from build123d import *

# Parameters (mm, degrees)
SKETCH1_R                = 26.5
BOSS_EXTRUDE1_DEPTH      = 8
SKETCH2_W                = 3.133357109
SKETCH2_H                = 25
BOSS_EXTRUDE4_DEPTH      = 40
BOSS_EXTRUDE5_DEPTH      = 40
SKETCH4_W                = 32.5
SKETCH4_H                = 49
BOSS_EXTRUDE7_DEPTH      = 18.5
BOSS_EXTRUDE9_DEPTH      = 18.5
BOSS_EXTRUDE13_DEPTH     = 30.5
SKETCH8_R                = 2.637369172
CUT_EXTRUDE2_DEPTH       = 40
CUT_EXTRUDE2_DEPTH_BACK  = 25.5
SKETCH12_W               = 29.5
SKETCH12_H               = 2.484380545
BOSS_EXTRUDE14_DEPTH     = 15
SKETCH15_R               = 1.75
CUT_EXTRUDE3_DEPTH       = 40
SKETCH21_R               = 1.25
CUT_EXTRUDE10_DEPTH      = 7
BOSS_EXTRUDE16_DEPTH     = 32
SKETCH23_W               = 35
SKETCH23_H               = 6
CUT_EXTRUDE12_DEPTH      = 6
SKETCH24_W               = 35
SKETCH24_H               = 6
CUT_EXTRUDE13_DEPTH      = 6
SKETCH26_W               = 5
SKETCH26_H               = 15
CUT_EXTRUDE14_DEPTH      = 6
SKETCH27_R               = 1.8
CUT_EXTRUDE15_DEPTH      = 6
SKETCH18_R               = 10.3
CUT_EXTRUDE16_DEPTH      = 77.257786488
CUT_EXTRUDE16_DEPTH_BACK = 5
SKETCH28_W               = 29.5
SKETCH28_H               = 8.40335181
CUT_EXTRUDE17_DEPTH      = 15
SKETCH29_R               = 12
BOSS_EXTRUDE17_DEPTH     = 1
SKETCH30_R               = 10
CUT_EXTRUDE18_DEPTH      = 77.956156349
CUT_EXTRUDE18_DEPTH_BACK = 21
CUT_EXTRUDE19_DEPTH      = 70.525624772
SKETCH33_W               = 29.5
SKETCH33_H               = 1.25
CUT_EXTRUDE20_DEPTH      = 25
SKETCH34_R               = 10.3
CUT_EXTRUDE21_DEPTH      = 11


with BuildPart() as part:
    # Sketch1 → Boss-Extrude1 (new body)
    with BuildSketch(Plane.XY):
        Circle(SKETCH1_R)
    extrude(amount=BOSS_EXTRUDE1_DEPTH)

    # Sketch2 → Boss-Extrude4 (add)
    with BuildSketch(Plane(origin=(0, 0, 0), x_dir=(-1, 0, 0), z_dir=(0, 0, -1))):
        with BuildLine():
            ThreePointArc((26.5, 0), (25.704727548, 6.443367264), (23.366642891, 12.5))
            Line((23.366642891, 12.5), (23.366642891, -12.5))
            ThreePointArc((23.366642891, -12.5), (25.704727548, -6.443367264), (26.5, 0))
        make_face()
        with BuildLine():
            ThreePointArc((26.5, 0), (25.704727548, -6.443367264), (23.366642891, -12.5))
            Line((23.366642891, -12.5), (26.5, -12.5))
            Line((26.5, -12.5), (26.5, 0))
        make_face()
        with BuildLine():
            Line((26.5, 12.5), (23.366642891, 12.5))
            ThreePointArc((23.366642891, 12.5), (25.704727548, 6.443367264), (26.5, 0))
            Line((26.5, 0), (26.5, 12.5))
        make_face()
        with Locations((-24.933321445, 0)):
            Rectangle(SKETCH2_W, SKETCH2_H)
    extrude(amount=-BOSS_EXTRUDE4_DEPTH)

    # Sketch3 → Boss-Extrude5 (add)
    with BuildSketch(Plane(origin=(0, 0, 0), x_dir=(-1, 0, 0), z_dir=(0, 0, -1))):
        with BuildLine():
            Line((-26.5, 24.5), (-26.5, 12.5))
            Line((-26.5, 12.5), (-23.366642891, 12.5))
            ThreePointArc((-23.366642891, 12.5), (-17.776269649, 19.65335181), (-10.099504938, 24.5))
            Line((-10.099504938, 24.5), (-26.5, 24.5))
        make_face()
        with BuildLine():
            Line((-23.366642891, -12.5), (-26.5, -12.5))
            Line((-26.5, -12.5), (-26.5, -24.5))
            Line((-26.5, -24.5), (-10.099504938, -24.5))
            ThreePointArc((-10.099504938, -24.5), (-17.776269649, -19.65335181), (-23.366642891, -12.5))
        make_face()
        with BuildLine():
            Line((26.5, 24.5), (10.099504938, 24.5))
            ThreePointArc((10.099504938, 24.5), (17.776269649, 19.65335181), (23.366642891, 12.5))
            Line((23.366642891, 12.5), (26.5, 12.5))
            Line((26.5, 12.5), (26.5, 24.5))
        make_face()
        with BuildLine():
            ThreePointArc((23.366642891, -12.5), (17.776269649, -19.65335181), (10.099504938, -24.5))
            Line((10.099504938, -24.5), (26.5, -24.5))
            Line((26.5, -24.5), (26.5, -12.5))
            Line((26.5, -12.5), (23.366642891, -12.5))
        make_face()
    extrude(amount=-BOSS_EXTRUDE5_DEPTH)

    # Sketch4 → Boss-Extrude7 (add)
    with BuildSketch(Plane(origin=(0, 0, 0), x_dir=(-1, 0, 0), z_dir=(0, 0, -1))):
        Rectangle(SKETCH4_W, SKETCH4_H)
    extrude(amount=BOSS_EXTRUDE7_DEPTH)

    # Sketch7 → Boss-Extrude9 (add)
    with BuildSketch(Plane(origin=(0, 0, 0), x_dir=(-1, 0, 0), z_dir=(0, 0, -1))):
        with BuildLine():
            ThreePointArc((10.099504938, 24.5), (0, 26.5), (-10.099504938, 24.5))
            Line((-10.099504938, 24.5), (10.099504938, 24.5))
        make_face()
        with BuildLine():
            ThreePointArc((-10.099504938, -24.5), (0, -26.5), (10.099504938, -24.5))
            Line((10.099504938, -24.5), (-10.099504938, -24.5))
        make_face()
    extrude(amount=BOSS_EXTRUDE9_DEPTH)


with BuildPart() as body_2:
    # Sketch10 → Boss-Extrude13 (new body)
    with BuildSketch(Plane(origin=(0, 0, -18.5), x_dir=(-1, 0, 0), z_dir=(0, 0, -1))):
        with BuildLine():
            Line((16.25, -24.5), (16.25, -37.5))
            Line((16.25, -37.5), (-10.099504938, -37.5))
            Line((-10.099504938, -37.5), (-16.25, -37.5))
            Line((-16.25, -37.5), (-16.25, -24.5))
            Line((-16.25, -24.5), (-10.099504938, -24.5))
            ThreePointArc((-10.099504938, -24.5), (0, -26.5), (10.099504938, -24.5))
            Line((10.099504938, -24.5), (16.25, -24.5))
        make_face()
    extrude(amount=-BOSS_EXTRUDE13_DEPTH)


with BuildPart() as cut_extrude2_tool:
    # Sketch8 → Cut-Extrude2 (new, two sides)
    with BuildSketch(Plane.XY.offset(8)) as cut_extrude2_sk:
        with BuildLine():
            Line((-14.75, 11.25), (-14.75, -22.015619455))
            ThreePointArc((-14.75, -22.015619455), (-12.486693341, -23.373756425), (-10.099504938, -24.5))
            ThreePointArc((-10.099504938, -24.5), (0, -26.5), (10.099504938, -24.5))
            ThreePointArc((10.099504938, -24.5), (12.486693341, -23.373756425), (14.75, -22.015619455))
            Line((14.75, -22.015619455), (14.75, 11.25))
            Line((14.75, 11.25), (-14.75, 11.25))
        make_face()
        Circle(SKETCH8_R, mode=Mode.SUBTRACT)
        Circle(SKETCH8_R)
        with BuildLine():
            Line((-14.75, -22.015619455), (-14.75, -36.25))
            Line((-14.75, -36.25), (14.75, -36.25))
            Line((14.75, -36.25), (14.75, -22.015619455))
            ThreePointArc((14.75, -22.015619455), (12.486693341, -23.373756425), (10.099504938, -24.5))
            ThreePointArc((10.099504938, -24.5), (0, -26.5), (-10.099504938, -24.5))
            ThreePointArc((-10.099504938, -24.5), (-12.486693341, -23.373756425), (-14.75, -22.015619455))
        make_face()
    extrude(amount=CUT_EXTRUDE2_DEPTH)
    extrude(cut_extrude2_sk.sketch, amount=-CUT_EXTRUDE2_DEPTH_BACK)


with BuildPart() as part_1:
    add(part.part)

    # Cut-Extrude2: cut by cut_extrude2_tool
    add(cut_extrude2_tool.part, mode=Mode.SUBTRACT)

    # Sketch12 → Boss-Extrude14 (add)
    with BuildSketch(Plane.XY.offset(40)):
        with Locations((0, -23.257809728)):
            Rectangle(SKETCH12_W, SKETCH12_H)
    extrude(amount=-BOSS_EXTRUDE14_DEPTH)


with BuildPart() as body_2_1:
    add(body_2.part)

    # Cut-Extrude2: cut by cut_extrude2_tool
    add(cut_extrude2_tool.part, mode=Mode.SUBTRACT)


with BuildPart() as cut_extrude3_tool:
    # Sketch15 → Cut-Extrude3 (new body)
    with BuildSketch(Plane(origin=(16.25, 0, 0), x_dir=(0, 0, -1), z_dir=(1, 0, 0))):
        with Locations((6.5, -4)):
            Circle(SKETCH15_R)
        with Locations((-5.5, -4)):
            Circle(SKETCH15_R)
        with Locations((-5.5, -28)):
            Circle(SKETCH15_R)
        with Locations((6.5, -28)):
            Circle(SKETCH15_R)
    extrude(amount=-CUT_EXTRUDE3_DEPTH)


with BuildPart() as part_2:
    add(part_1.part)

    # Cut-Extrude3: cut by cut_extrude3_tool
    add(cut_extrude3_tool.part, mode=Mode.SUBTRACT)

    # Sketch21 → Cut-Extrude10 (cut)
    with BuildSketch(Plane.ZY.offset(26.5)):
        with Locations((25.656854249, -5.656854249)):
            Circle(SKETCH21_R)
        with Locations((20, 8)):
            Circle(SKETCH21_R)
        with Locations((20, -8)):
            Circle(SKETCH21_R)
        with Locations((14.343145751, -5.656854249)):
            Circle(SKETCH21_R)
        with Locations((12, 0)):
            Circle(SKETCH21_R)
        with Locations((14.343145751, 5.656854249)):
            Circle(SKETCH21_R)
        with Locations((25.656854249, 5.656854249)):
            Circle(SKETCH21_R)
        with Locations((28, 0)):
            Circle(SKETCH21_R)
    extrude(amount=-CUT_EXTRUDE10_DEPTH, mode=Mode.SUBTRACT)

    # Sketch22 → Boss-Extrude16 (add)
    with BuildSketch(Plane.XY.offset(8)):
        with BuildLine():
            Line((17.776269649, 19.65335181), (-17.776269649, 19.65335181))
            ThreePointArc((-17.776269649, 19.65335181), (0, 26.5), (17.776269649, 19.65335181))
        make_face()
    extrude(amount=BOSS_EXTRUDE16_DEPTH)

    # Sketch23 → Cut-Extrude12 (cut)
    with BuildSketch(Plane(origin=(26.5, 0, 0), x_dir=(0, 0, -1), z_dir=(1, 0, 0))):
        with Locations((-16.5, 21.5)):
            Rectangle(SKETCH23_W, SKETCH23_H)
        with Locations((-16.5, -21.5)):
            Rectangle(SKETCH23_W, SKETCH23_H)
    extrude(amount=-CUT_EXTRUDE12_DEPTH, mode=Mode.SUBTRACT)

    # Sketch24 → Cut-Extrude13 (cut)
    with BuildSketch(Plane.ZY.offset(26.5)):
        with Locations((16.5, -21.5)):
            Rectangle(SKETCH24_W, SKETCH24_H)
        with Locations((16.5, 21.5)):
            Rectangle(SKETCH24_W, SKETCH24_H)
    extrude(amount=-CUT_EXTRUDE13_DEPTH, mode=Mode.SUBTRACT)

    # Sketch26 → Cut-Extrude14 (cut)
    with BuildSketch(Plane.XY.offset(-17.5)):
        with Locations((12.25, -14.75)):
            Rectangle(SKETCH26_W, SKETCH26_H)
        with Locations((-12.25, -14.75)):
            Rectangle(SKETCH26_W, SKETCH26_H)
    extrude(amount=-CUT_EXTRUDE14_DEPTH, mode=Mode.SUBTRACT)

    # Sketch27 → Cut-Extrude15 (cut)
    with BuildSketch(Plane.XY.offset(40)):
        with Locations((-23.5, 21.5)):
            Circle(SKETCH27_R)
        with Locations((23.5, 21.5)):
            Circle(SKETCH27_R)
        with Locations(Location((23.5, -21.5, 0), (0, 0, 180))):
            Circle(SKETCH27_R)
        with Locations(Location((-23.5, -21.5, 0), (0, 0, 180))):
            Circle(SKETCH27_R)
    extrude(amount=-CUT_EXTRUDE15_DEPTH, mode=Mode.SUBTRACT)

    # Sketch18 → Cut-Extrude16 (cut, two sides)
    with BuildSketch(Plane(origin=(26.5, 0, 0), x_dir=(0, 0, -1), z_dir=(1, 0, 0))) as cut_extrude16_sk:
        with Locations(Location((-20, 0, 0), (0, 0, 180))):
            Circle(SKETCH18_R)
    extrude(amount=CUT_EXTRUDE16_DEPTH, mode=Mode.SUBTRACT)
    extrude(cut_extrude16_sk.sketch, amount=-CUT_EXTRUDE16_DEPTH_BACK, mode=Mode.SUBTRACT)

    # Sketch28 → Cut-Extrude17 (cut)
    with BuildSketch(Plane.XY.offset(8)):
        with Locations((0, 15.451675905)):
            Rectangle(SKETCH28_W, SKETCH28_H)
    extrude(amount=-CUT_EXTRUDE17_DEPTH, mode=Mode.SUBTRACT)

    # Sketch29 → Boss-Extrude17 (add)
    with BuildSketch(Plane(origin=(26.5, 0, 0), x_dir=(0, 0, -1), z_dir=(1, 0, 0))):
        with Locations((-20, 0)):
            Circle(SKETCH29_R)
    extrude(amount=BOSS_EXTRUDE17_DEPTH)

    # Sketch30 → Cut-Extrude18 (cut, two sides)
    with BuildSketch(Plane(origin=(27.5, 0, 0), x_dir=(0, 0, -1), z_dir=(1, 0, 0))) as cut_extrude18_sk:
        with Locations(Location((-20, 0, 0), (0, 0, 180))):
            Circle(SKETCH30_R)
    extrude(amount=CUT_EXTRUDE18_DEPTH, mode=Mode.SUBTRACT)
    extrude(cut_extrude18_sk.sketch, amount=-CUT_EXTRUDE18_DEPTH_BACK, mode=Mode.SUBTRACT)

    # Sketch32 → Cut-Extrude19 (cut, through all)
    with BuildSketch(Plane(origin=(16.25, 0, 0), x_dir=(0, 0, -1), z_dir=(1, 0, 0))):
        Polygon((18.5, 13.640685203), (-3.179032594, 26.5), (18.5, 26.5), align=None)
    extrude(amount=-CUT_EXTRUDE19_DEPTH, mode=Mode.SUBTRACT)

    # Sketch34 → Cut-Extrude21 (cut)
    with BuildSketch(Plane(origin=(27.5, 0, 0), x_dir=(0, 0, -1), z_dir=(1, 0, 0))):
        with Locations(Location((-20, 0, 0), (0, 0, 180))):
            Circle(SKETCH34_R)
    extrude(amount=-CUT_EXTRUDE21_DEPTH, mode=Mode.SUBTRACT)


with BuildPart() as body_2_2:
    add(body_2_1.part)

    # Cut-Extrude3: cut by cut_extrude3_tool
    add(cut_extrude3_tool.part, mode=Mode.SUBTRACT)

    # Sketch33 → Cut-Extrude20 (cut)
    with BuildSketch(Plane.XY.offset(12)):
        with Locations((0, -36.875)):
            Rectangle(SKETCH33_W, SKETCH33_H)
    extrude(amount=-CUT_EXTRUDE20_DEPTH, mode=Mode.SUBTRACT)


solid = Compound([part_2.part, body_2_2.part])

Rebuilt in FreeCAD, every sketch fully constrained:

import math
import FreeCAD as App
import Part
import Sketcher
from FreeCAD import Vector
Q = App.Units.Quantity


def add_polygon(sketch, points):
    """Adds a closed chain of lines whose ends are joined by coincident constraints."""
    first, n = sketch.GeometryCount, len(points)
    for a, b in zip(points, points[1:] + points[:1]):
        sketch.addGeometry(Part.LineSegment(App.Vector(*a, 0), App.Vector(*b, 0)), False)
    for i in range(n):
        sketch.addConstraint(Sketcher.Constraint("Coincident", first + i, 2, first + (i + 1) % n, 1))

doc = App.newDocument("Part")
body = doc.addObject("PartDesign::Body", "Body")

sketch1 = body.newObject("Sketcher::SketchObject", "Sketch")
sketch1.AttachmentSupport = (doc.getObject("XY_Plane"), [""])
sketch1.MapMode = "FlatFace"
sketch1.addGeometry(Part.Circle(Vector(0, 0, 0), Vector(0, 0, 1), 26), False)
sketch1.addConstraint(Sketcher.Constraint("Coincident", 0, 3, -1, 1))
sketch1.addConstraint(Sketcher.Constraint("Diameter", 0, Q("53 mm")))
pad1 = body.newObject("PartDesign::Pad", "Pad")
pad1.Profile = sketch1
pad1.Length = 8

sketch2 = body.newObject("Sketcher::SketchObject", "Sketch001")
sketch2.AttachmentSupport = (doc.getObject("XY_Plane"), [""])
sketch2.MapMode = "FlatFace"
add_polygon(sketch2, [(-23.4, 12.5), (-23.4, -12.5), (-26.5, -12.5), (-26.5, 12.5)])
add_polygon(sketch2, [(26.5, 12.5), (26.5, -12.5), (23.4, -12.5), (23.4, 12.5)])
sketch2.addConstraint(Sketcher.Constraint("Vertical", 0))
sketch2.addConstraint(Sketcher.Constraint("Horizontal", 1))
sketch2.addConstraint(Sketcher.Constraint("Vertical", 2))
sketch2.addConstraint(Sketcher.Constraint("Horizontal", 3))
sketch2.addConstraint(Sketcher.Constraint("Vertical", 4))
sketch2.addConstraint(Sketcher.Constraint("Horizontal", 5))
sketch2.addConstraint(Sketcher.Constraint("Vertical", 6))
sketch2.addConstraint(Sketcher.Constraint("Horizontal", 7))
sketch2.addConstraint(Sketcher.Constraint("Symmetric", 2, 2, 4, 2, -1, 1))
sketch2.addConstraint(Sketcher.Constraint("Symmetric", 0, 2, 6, 2, -1, 1))
sketch2.addConstraint(Sketcher.Constraint("Horizontal", 1, 2, 4, 2))
sketch2.addConstraint(Sketcher.Constraint("DistanceY", 0, 2, 0, 1, Q("25 mm")))
sketch2.addConstraint(Sketcher.Constraint("DistanceX", 1, 2, 4, 2, Q("53 mm")))
sketch2.addConstraint(Sketcher.Constraint("DistanceX", 1, 2, 1, 1, Q("3.133357 mm")))
pad2 = body.newObject("PartDesign::Pad", "Pad001")
pad2.Profile = sketch2
pad2.Length = 40

sketch3 = body.newObject("Sketcher::SketchObject", "Sketch002")
sketch3.AttachmentSupport = (doc.getObject("XY_Plane"), [""])
sketch3.MapMode = "FlatFace"
sketch3.addGeometry(Part.LineSegment(Vector(26.5, 24.5, 0), Vector(26.5, 12.5, 0)), False)
sketch3.addGeometry(Part.LineSegment(Vector(26.5, 12.5, 0), Vector(23.4, 12.5, 0)), False)
sketch3.addGeometry(Part.ArcOfCircle(Part.Circle(Vector(0, 0, 0), Vector(0, 0, 1), 26.5), math.radians(28), math.radians(68)), False)
sketch3.addGeometry(Part.LineSegment(Vector(10.1, 24.5, 0), Vector(26.5, 24.5, 0)), False)
sketch3.addGeometry(Part.LineSegment(Vector(23.4, -12.5, 0), Vector(26.5, -12.5, 0)), False)
sketch3.addGeometry(Part.LineSegment(Vector(26.5, -12.5, 0), Vector(26.5, -24.5, 0)), False)
sketch3.addGeometry(Part.LineSegment(Vector(26.5, -24.5, 0), Vector(10.1, -24.5, 0)), False)
sketch3.addGeometry(Part.ArcOfCircle(Part.Circle(Vector(0, 0, 0), Vector(0, 0, 1), 26.5), math.radians(-68), math.radians(-28)), False)
sketch3.addGeometry(Part.LineSegment(Vector(-26.5, 24.5, 0), Vector(-10.1, 24.5, 0)), False)
sketch3.addGeometry(Part.ArcOfCircle(Part.Circle(Vector(0, 0, 0), Vector(0, 0, 1), 26.5), math.radians(112), math.radians(152)), False)
sketch3.addGeometry(Part.LineSegment(Vector(-23.4, 12.5, 0), Vector(-26.5, 12.5, 0)), False)
sketch3.addGeometry(Part.LineSegment(Vector(-26.5, 12.5, 0), Vector(-26.5, 24.5, 0)), False)
sketch3.addGeometry(Part.ArcOfCircle(Part.Circle(Vector(0, 0, 0), Vector(0, 0, 1), 26.5), math.radians(-152), math.radians(-112)), False)
sketch3.addGeometry(Part.LineSegment(Vector(-10.1, -24.5, 0), Vector(-26.5, -24.5, 0)), False)
sketch3.addGeometry(Part.LineSegment(Vector(-26.5, -24.5, 0), Vector(-26.5, -12.5, 0)), False)
sketch3.addGeometry(Part.LineSegment(Vector(-26.5, -12.5, 0), Vector(-23.4, -12.5, 0)), False)
sketch3.addConstraint(Sketcher.Constraint("Coincident", 0, 2, 1, 1))
sketch3.addConstraint(Sketcher.Constraint("Coincident", 1, 2, 2, 1))
sketch3.addConstraint(Sketcher.Constraint("Coincident", 2, 2, 3, 1))
sketch3.addConstraint(Sketcher.Constraint("Coincident", 3, 2, 0, 1))
sketch3.addConstraint(Sketcher.Constraint("Coincident", 4, 2, 5, 1))
sketch3.addConstraint(Sketcher.Constraint("Coincident", 5, 2, 6, 1))
sketch3.addConstraint(Sketcher.Constraint("Coincident", 6, 2, 7, 1))
sketch3.addConstraint(Sketcher.Constraint("Coincident", 7, 2, 4, 1))
sketch3.addConstraint(Sketcher.Constraint("Coincident", 8, 2, 9, 1))
sketch3.addConstraint(Sketcher.Constraint("Coincident", 9, 2, 10, 1))
sketch3.addConstraint(Sketcher.Constraint("Coincident", 10, 2, 11, 1))
sketch3.addConstraint(Sketcher.Constraint("Coincident", 11, 2, 8, 1))
sketch3.addConstraint(Sketcher.Constraint("Coincident", 12, 2, 13, 1))
sketch3.addConstraint(Sketcher.Constraint("Coincident", 13, 2, 14, 1))
sketch3.addConstraint(Sketcher.Constraint("Coincident", 14, 2, 15, 1))
sketch3.addConstraint(Sketcher.Constraint("Coincident", 15, 2, 12, 1))
sketch3.addConstraint(Sketcher.Constraint("Vertical", 0))
sketch3.addConstraint(Sketcher.Constraint("Horizontal", 1))
sketch3.addConstraint(Sketcher.Constraint("Horizontal", 3))
sketch3.addConstraint(Sketcher.Constraint("Horizontal", 4))
sketch3.addConstraint(Sketcher.Constraint("Vertical", 5))
sketch3.addConstraint(Sketcher.Constraint("Horizontal", 6))
sketch3.addConstraint(Sketcher.Constraint("Horizontal", 8))
sketch3.addConstraint(Sketcher.Constraint("Horizontal", 10))
sketch3.addConstraint(Sketcher.Constraint("Vertical", 11))
sketch3.addConstraint(Sketcher.Constraint("Horizontal", 13))
sketch3.addConstraint(Sketcher.Constraint("Vertical", 14))
sketch3.addConstraint(Sketcher.Constraint("Horizontal", 15))
sketch3.addConstraint(Sketcher.Constraint("Coincident", 2, 3, -1, 1))
sketch3.addConstraint(Sketcher.Constraint("Coincident", 7, 3, -1, 1))
sketch3.addConstraint(Sketcher.Constraint("Coincident", 9, 3, -1, 1))
sketch3.addConstraint(Sketcher.Constraint("Coincident", 12, 3, -1, 1))
sketch3.addConstraint(Sketcher.Constraint("Equal", 2, 7))
sketch3.addConstraint(Sketcher.Constraint("Equal", 7, 9))
sketch3.addConstraint(Sketcher.Constraint("Equal", 9, 12))
sketch3.addConstraint(Sketcher.Constraint("Symmetric", 4, 2, 10, 2, -1, 1))
sketch3.addConstraint(Sketcher.Constraint("Symmetric", 3, 2, 13, 2, -1, 1))
sketch3.addConstraint(Sketcher.Constraint("Symmetric", 0, 2, 10, 2, -2))
sketch3.addConstraint(Sketcher.Constraint("Horizontal", 3, 2, 8, 2))
sketch3.addConstraint(Sketcher.Constraint("Horizontal", 6, 2, 12, 2))
sketch3.addConstraint(Sketcher.Constraint("Horizontal", 7, 2, 14, 2))
sketch3.addConstraint(Sketcher.Constraint("Radius", 2, Q("26.5 mm")))
sketch3.addConstraint(Sketcher.Constraint("DistanceY", 0, 2, 0, 1, Q("12 mm")))
sketch3.addConstraint(Sketcher.Constraint("DistanceY", 4, 2, 0, 2, Q("25 mm")))
sketch3.addConstraint(Sketcher.Constraint("DistanceX", -1, 1, 0, 2, Q("26.5 mm")))
pad3 = body.newObject("PartDesign::Pad", "Pad002")
pad3.Profile = sketch3
pad3.Length = 40

sketch4 = body.newObject("Sketcher::SketchObject", "Sketch003")
sketch4.AttachmentSupport = (doc.getObject("XY_Plane"), [""])
sketch4.MapMode = "FlatFace"
add_polygon(sketch4, [(16, 24), (16, -24), (-16, -24), (-16, 24)])
sketch4.addConstraint(Sketcher.Constraint("Vertical", 0))
sketch4.addConstraint(Sketcher.Constraint("Horizontal", 1))
sketch4.addConstraint(Sketcher.Constraint("Vertical", 2))
sketch4.addConstraint(Sketcher.Constraint("Horizontal", 3))
sketch4.addConstraint(Sketcher.Constraint("Symmetric", 0, 2, 2, 2, -1, 1))
sketch4.addConstraint(Sketcher.Constraint("DistanceY", 0, 2, 0, 1, Q("49 mm")))
sketch4.addConstraint(Sketcher.Constraint("DistanceX", 1, 2, 1, 1, Q("32.5 mm")))
pad4 = body.newObject("PartDesign::Pad", "Pad003")
pad4.Profile = sketch4
pad4.Length = 18.5
pad4.Reversed = True

sketch5 = body.newObject("Sketcher::SketchObject", "Sketch004")
sketch5.AttachmentSupport = (doc.getObject("XY_Plane"), [""])
sketch5.MapMode = "FlatFace"
sketch5.addGeometry(Part.ArcOfCircle(Part.Circle(Vector(0, 0, 0), Vector(0, 0, 1), 26), math.radians(68), math.radians(112)), False)
sketch5.addGeometry(Part.LineSegment(Vector(10, 24, 0), Vector(-10, 24, 0)), False)
sketch5.addGeometry(Part.ArcOfCircle(Part.Circle(Vector(0, 0, 0), Vector(0, 0, 1), 26), math.radians(-112), math.radians(-68)), False)
sketch5.addGeometry(Part.LineSegment(Vector(-10, -24, 0), Vector(10, -24, 0)), False)
sketch5.addConstraint(Sketcher.Constraint("Coincident", 0, 1, 1, 1))
sketch5.addConstraint(Sketcher.Constraint("Coincident", 1, 2, 0, 2))
sketch5.addConstraint(Sketcher.Constraint("Coincident", 2, 1, 3, 1))
sketch5.addConstraint(Sketcher.Constraint("Coincident", 3, 2, 2, 2))
sketch5.addConstraint(Sketcher.Constraint("Horizontal", 1))
sketch5.addConstraint(Sketcher.Constraint("Horizontal", 3))
sketch5.addConstraint(Sketcher.Constraint("Coincident", 0, 3, -1, 1))
sketch5.addConstraint(Sketcher.Constraint("Coincident", 2, 3, -1, 1))
sketch5.addConstraint(Sketcher.Constraint("Equal", 0, 2))
sketch5.addConstraint(Sketcher.Constraint("Vertical", 1, 2, 2, 1))
sketch5.addConstraint(Sketcher.Constraint("Radius", 0, Q("26.5 mm")))
sketch5.addConstraint(Sketcher.Constraint("DistanceY", 2, 1, 1, 2, Q("49 mm")))
pad5 = body.newObject("PartDesign::Pad", "Pad004")
pad5.Profile = sketch5
pad5.Length = 18.5
pad5.Reversed = True
body2 = doc.addObject("PartDesign::Body", "Body001")

sketch6 = body2.newObject("Sketcher::SketchObject", "Sketch005")
sketch6.AttachmentSupport = (doc.getObject("XY_Plane001"), [""])
sketch6.MapMode = "FlatFace"
sketch6.AttachmentOffset = App.Placement(Vector(0, 0, -18.5), App.Rotation())
sketch6.addGeometry(Part.LineSegment(Vector(-16, -38, 0), Vector(-16, -24, 0)), False)
sketch6.addGeometry(Part.LineSegment(Vector(-16, -24, 0), Vector(-10, -24, 0)), False)
sketch6.addGeometry(Part.ArcOfCircle(Part.Circle(Vector(0, 0, 0), Vector(0, 0, 1), 26), math.radians(-112), math.radians(-68)), False)
sketch6.addGeometry(Part.LineSegment(Vector(10, -24, 0), Vector(16, -24, 0)), False)
sketch6.addGeometry(Part.LineSegment(Vector(16, -24, 0), Vector(16, -38, 0)), False)
sketch6.addGeometry(Part.LineSegment(Vector(16, -38, 0), Vector(-16, -38, 0)), False)
sketch6.addConstraint(Sketcher.Constraint("Coincident", 0, 2, 1, 1))
sketch6.addConstraint(Sketcher.Constraint("Coincident", 1, 2, 2, 1))
sketch6.addConstraint(Sketcher.Constraint("Coincident", 2, 2, 3, 1))
sketch6.addConstraint(Sketcher.Constraint("Coincident", 3, 2, 4, 1))
sketch6.addConstraint(Sketcher.Constraint("Coincident", 4, 2, 5, 1))
sketch6.addConstraint(Sketcher.Constraint("Coincident", 5, 2, 0, 1))
sketch6.addConstraint(Sketcher.Constraint("Vertical", 0))
sketch6.addConstraint(Sketcher.Constraint("Horizontal", 1))
sketch6.addConstraint(Sketcher.Constraint("Horizontal", 3))
sketch6.addConstraint(Sketcher.Constraint("Vertical", 4))
sketch6.addConstraint(Sketcher.Constraint("Horizontal", 5))
sketch6.addConstraint(Sketcher.Constraint("Coincident", 2, 3, -1, 1))
sketch6.addConstraint(Sketcher.Constraint("Symmetric", 0, 2, 3, 2, -2))
sketch6.addConstraint(Sketcher.Constraint("Radius", 2, Q("26.5 mm")))
sketch6.addConstraint(Sketcher.Constraint("DistanceY", 0, 1, 0, 2, Q("13 mm")))
sketch6.addConstraint(Sketcher.Constraint("DistanceX", 5, 2, 5, 1, Q("32.5 mm")))
sketch6.addConstraint(Sketcher.Constraint("DistanceY", 0, 2, -1, 1, Q("24.5 mm")))
pad6 = body2.newObject("PartDesign::Pad", "Pad005")
pad6.Profile = sketch6
pad6.Length = 30.5
body3 = doc.addObject("PartDesign::Body", "Body002")

sketch7 = body3.newObject("Sketcher::SketchObject", "Sketch006")
sketch7.AttachmentSupport = (doc.getObject("XY_Plane002"), [""])
sketch7.MapMode = "FlatFace"
sketch7.AttachmentOffset = App.Placement(Vector(0, 0, 8), App.Rotation())
add_polygon(sketch7, [(-15, 11), (-15, -36), (15, -36), (15, 11)])
sketch7.addConstraint(Sketcher.Constraint("Vertical", 0))
sketch7.addConstraint(Sketcher.Constraint("Horizontal", 1))
sketch7.addConstraint(Sketcher.Constraint("Vertical", 2))
sketch7.addConstraint(Sketcher.Constraint("Horizontal", 3))
sketch7.addConstraint(Sketcher.Constraint("DistanceX", 1, 1, 1, 2, Q("29.5 mm")))
sketch7.addConstraint(Sketcher.Constraint("DistanceY", 0, 2, 0, 1, Q("47.5 mm")))
sketch7.addConstraint(Sketcher.Constraint("DistanceX", 0, 2, -1, 1, Q("14.75 mm")))
sketch7.addConstraint(Sketcher.Constraint("DistanceY", 0, 2, -1, 1, Q("36.25 mm")))
pad7 = body3.newObject("PartDesign::Pad", "Pad006")
pad7.Profile = sketch7
pad7.Type = "TwoLengths"
pad7.Length = 40
pad7.Length2 = 25.5
doc.recompute()

body4 = doc.addObject("PartDesign::Body", "Body003")
body4.BaseFeature = body3
boolean = body.newObject("PartDesign::Boolean", "Boolean")
boolean.Type = "Cut"
boolean.addObjects([body4])
doc.recompute()

sketch8 = body.newObject("Sketcher::SketchObject", "Sketch007")
sketch8.AttachmentSupport = (doc.getObject("XY_Plane"), [""])
sketch8.MapMode = "FlatFace"
sketch8.AttachmentOffset = App.Placement(Vector(0, 0, 40), App.Rotation())
add_polygon(sketch8, [(-14.8, -22), (-14.8, -24.5), (14.8, -24.5), (14.8, -22)])
sketch8.addConstraint(Sketcher.Constraint("Vertical", 0))
sketch8.addConstraint(Sketcher.Constraint("Horizontal", 1))
sketch8.addConstraint(Sketcher.Constraint("Vertical", 2))
sketch8.addConstraint(Sketcher.Constraint("Horizontal", 3))
sketch8.addConstraint(Sketcher.Constraint("DistanceX", 1, 1, 1, 2, Q("29.5 mm")))
sketch8.addConstraint(Sketcher.Constraint("DistanceY", 0, 2, -1, 1, Q("24.5 mm")))
sketch8.addConstraint(Sketcher.Constraint("DistanceX", 0, 2, -1, 1, Q("14.75 mm")))
sketch8.addConstraint(Sketcher.Constraint("DistanceY", 0, 2, 0, 1, Q("2.484381 mm")))
pad8 = body.newObject("PartDesign::Pad", "Pad007")
pad8.Profile = sketch8
pad8.Length = 15
pad8.Reversed = True
doc.recompute()

boolean2 = body2.newObject("PartDesign::Boolean", "Boolean001")
boolean2.Type = "Cut"
boolean2.addObjects([body3])
body5 = doc.addObject("PartDesign::Body", "Body004")
body5.AllowCompound = True

sketch9 = body5.newObject("Sketcher::SketchObject", "Sketch008")
sketch9.AttachmentSupport = (doc.getObject("YZ_Plane004"), [""])
sketch9.MapMode = "FlatFace"
sketch9.AttachmentOffset = App.Placement(Vector(0, 0, 16.25), App.Rotation())
sketch9.addGeometry(Part.Circle(Vector(-4, -6.5, 0), Vector(0, 0, 1), 1.8), False)
sketch9.addGeometry(Part.Circle(Vector(-4, 5.5, 0), Vector(0, 0, 1), 1.8), False)
sketch9.addGeometry(Part.Circle(Vector(-28, 5.5, 0), Vector(0, 0, 1), 1.8), False)
sketch9.addGeometry(Part.Circle(Vector(-28, -6.5, 0), Vector(0, 0, 1), 1.8), False)
sketch9.addConstraint(Sketcher.Constraint("Equal", 0, 1))
sketch9.addConstraint(Sketcher.Constraint("Equal", 1, 2))
sketch9.addConstraint(Sketcher.Constraint("Equal", 2, 3))
sketch9.addConstraint(Sketcher.Constraint("Horizontal", 1, 3, 2, 3))
sketch9.addConstraint(Sketcher.Constraint("Horizontal", 0, 3, 3, 3))
sketch9.addConstraint(Sketcher.Constraint("Vertical", 0, 3, 1, 3))
sketch9.addConstraint(Sketcher.Constraint("Vertical", 2, 3, 3, 3))
sketch9.addConstraint(Sketcher.Constraint("Diameter", 0, Q("3.5 mm")))
sketch9.addConstraint(Sketcher.Constraint("DistanceX", 0, 3, -1, 1, Q("4 mm")))
sketch9.addConstraint(Sketcher.Constraint("DistanceX", 2, 3, -1, 1, Q("28 mm")))
sketch9.addConstraint(Sketcher.Constraint("DistanceY", 0, 3, 1, 3, Q("12 mm")))
sketch9.addConstraint(Sketcher.Constraint("DistanceY", 0, 3, -1, 1, Q("6.5 mm")))
pad9 = body5.newObject("PartDesign::Pad", "Pad008")
pad9.Profile = sketch9
pad9.Length = 40
pad9.Reversed = True
doc.recompute()

body6 = doc.addObject("PartDesign::Body", "Body005")
body6.BaseFeature = body5
boolean3 = body.newObject("PartDesign::Boolean", "Boolean002")
boolean3.Type = "Cut"
boolean3.addObjects([body6])
doc.recompute()

sketch10 = body.newObject("Sketcher::SketchObject", "Sketch009")
sketch10.AttachmentSupport = (doc.getObject("YZ_Plane"), [""])
sketch10.MapMode = "FlatFace"
sketch10.AttachmentOffset = App.Placement(Vector(0, 0, -26.5), App.Rotation())
sketch10.addGeometry(Part.Circle(Vector(-5.7, 25.7, 0), Vector(0, 0, 1), 1.2), False)
sketch10.addGeometry(Part.Circle(Vector(8, 20, 0), Vector(0, 0, 1), 1.2), False)
sketch10.addGeometry(Part.Circle(Vector(-8, 20, 0), Vector(0, 0, 1), 1.2), False)
sketch10.addGeometry(Part.Circle(Vector(-5.7, 14.3, 0), Vector(0, 0, 1), 1.2), False)
sketch10.addGeometry(Part.Circle(Vector(0, 12, 0), Vector(0, 0, 1), 1.2), False)
sketch10.addGeometry(Part.Circle(Vector(5.7, 14.3, 0), Vector(0, 0, 1), 1.2), False)
sketch10.addGeometry(Part.Circle(Vector(5.7, 25.7, 0), Vector(0, 0, 1), 1.2), False)
sketch10.addGeometry(Part.Circle(Vector(0, 28, 0), Vector(0, 0, 1), 1.2), False)
sketch10.addConstraint(Sketcher.Constraint("Equal", 0, 1))
sketch10.addConstraint(Sketcher.Constraint("Equal", 1, 2))
sketch10.addConstraint(Sketcher.Constraint("Equal", 2, 3))
sketch10.addConstraint(Sketcher.Constraint("Equal", 3, 4))
sketch10.addConstraint(Sketcher.Constraint("Equal", 4, 5))
sketch10.addConstraint(Sketcher.Constraint("Equal", 5, 6))
sketch10.addConstraint(Sketcher.Constraint("Equal", 6, 7))
sketch10.addConstraint(Sketcher.Constraint("Symmetric", 1, 3, 2, 3, -2))
sketch10.addConstraint(Sketcher.Constraint("Symmetric", 3, 3, 5, 3, -2))
sketch10.addConstraint(Sketcher.Constraint("Symmetric", 0, 3, 6, 3, -2))
sketch10.addConstraint(Sketcher.Constraint("PointOnObject", 4, 3, -2))
sketch10.addConstraint(Sketcher.Constraint("PointOnObject", 7, 3, -2))
sketch10.addConstraint(Sketcher.Constraint("Vertical", 0, 3, 3, 3))
sketch10.addConstraint(Sketcher.Constraint("Diameter", 0, Q("2.5 mm")))
sketch10.addConstraint(Sketcher.Constraint("DistanceX", -1, 1, 1, 3, Q("8 mm")))
sketch10.addConstraint(Sketcher.Constraint("DistanceY", -1, 1, 1, 3, Q("20 mm")))
sketch10.addConstraint(Sketcher.Constraint("DistanceY", -1, 1, 4, 3, Q("12 mm")))
sketch10.addConstraint(Sketcher.Constraint("DistanceY", -1, 1, 7, 3, Q("28 mm")))
sketch10.addConstraint(Sketcher.Constraint("DistanceY", 3, 3, 0, 3, Q("11.313708 mm")))
sketch10.addConstraint(Sketcher.Constraint("DistanceX", 3, 3, 5, 3, Q("11.313708 mm")))
sketch10.addConstraint(Sketcher.Constraint("DistanceY", -1, 1, 0, 3, Q("25.656854 mm")))
pocket1 = body.newObject("PartDesign::Pocket", "Pocket")
pocket1.Profile = sketch10
pocket1.Length = 7
pocket1.Reversed = True

sketch11 = body.newObject("Sketcher::SketchObject", "Sketch010")
sketch11.AttachmentSupport = (doc.getObject("XY_Plane"), [""])
sketch11.MapMode = "FlatFace"
sketch11.AttachmentOffset = App.Placement(Vector(0, 0, 8), App.Rotation())
sketch11.addGeometry(Part.LineSegment(Vector(-18, 20, 0), Vector(18, 20, 0)), False)
sketch11.addGeometry(Part.ArcOfCircle(Part.Circle(Vector(0, 0, 0), Vector(0, 0, 1), 26), math.radians(48), math.radians(132)), False)
sketch11.addConstraint(Sketcher.Constraint("Coincident", 0, 1, 1, 2))
sketch11.addConstraint(Sketcher.Constraint("Coincident", 1, 1, 0, 2))
sketch11.addConstraint(Sketcher.Constraint("Horizontal", 0))
sketch11.addConstraint(Sketcher.Constraint("Coincident", 1, 3, -1, 1))
sketch11.addConstraint(Sketcher.Constraint("Radius", 1, Q("26.5 mm")))
sketch11.addConstraint(Sketcher.Constraint("DistanceX", 0, 1, 0, 2, Q("35.552539 mm")))
pad10 = body.newObject("PartDesign::Pad", "Pad009")
pad10.Profile = sketch11
pad10.Length = 32

sketch12 = body.newObject("Sketcher::SketchObject", "Sketch011")
sketch12.AttachmentSupport = (doc.getObject("YZ_Plane"), [""])
sketch12.MapMode = "FlatFace"
sketch12.AttachmentOffset = App.Placement(Vector(0, 0, 26.5), App.Rotation())
add_polygon(sketch12, [(24, 34), (18, 34), (18, -1), (24, -1)])
add_polygon(sketch12, [(-18, 34), (-24, 34), (-24, -1), (-18, -1)])
sketch12.addConstraint(Sketcher.Constraint("Horizontal", 0))
sketch12.addConstraint(Sketcher.Constraint("Vertical", 1))
sketch12.addConstraint(Sketcher.Constraint("Horizontal", 2))
sketch12.addConstraint(Sketcher.Constraint("Vertical", 3))
sketch12.addConstraint(Sketcher.Constraint("Horizontal", 4))
sketch12.addConstraint(Sketcher.Constraint("Vertical", 5))
sketch12.addConstraint(Sketcher.Constraint("Horizontal", 6))
sketch12.addConstraint(Sketcher.Constraint("Vertical", 7))
sketch12.addConstraint(Sketcher.Constraint("Symmetric", 3, 2, 4, 2, -2))
sketch12.addConstraint(Sketcher.Constraint("Symmetric", 1, 2, 6, 2, -2))
sketch12.addConstraint(Sketcher.Constraint("DistanceX", 0, 2, 0, 1, Q("6 mm")))
sketch12.addConstraint(Sketcher.Constraint("DistanceY", 1, 2, 1, 1, Q("35 mm")))
sketch12.addConstraint(Sketcher.Constraint("DistanceY", -1, 1, 0, 2, Q("34 mm")))
sketch12.addConstraint(Sketcher.Constraint("DistanceX", 4, 2, 0, 2, Q("43 mm")))
pocket2 = body.newObject("PartDesign::Pocket", "Pocket001")
pocket2.Profile = sketch12
pocket2.Length = 6

sketch13 = body.newObject("Sketcher::SketchObject", "Sketch012")
sketch13.AttachmentSupport = (doc.getObject("YZ_Plane"), [""])
sketch13.MapMode = "FlatFace"
sketch13.AttachmentOffset = App.Placement(Vector(0, 0, -26.5), App.Rotation())
add_polygon(sketch13, [(-18, -1), (-24, -1), (-24, 34), (-18, 34)])
add_polygon(sketch13, [(24, -1), (18, -1), (18, 34), (24, 34)])
sketch13.addConstraint(Sketcher.Constraint("Horizontal", 0))
sketch13.addConstraint(Sketcher.Constraint("Vertical", 1))
sketch13.addConstraint(Sketcher.Constraint("Horizontal", 2))
sketch13.addConstraint(Sketcher.Constraint("Vertical", 3))
sketch13.addConstraint(Sketcher.Constraint("Horizontal", 4))
sketch13.addConstraint(Sketcher.Constraint("Vertical", 5))
sketch13.addConstraint(Sketcher.Constraint("Horizontal", 6))
sketch13.addConstraint(Sketcher.Constraint("Vertical", 7))
sketch13.addConstraint(Sketcher.Constraint("Symmetric", 3, 2, 4, 2, -2))
sketch13.addConstraint(Sketcher.Constraint("Symmetric", 1, 2, 6, 2, -2))
sketch13.addConstraint(Sketcher.Constraint("DistanceX", 0, 2, 0, 1, Q("6 mm")))
sketch13.addConstraint(Sketcher.Constraint("DistanceY", 1, 1, 1, 2, Q("35 mm")))
sketch13.addConstraint(Sketcher.Constraint("DistanceY", 0, 2, -1, 1, Q("1 mm")))
sketch13.addConstraint(Sketcher.Constraint("DistanceX", 3, 2, 4, 2, Q("37 mm")))
pocket3 = body.newObject("PartDesign::Pocket", "Pocket002")
pocket3.Profile = sketch13
pocket3.Length = 6
pocket3.Reversed = True

sketch14 = body.newObject("Sketcher::SketchObject", "Sketch013")
sketch14.AttachmentSupport = (doc.getObject("XY_Plane"), [""])
sketch14.MapMode = "FlatFace"
sketch14.AttachmentOffset = App.Placement(Vector(0, 0, -17.5), App.Rotation())
add_polygon(sketch14, [(10, -7), (10, -22), (15, -22), (15, -7)])
add_polygon(sketch14, [(-15, -7), (-15, -22), (-10, -22), (-10, -7)])
sketch14.addConstraint(Sketcher.Constraint("Vertical", 0))
sketch14.addConstraint(Sketcher.Constraint("Horizontal", 1))
sketch14.addConstraint(Sketcher.Constraint("Vertical", 2))
sketch14.addConstraint(Sketcher.Constraint("Horizontal", 3))
sketch14.addConstraint(Sketcher.Constraint("Vertical", 4))
sketch14.addConstraint(Sketcher.Constraint("Horizontal", 5))
sketch14.addConstraint(Sketcher.Constraint("Vertical", 6))
sketch14.addConstraint(Sketcher.Constraint("Horizontal", 7))
sketch14.addConstraint(Sketcher.Constraint("Symmetric", 1, 2, 4, 2, -2))
sketch14.addConstraint(Sketcher.Constraint("Symmetric", 3, 2, 6, 2, -2))
sketch14.addConstraint(Sketcher.Constraint("DistanceX", 1, 1, 1, 2, Q("5 mm")))
sketch14.addConstraint(Sketcher.Constraint("DistanceY", 0, 2, 0, 1, Q("15 mm")))
sketch14.addConstraint(Sketcher.Constraint("DistanceX", 4, 2, 0, 2, Q("24.5 mm")))
sketch14.addConstraint(Sketcher.Constraint("DistanceY", 0, 2, -1, 1, Q("22.25 mm")))
pocket4 = body.newObject("PartDesign::Pocket", "Pocket003")
pocket4.Profile = sketch14
pocket4.Length = 6

sketch15 = body.newObject("Sketcher::SketchObject", "Sketch014")
sketch15.AttachmentSupport = (doc.getObject("XY_Plane"), [""])
sketch15.MapMode = "FlatFace"
sketch15.AttachmentOffset = App.Placement(Vector(0, 0, 40), App.Rotation())
sketch15.addGeometry(Part.Circle(Vector(-23.5, 21.5, 0), Vector(0, 0, 1), 1.8), False)
sketch15.addGeometry(Part.Circle(Vector(23.5, 21.5, 0), Vector(0, 0, 1), 1.8), False)
sketch15.addGeometry(Part.Circle(Vector(23.5, -21.5, 0), Vector(0, 0, 1), 1.8), False)
sketch15.addGeometry(Part.Circle(Vector(-23.5, -21.5, 0), Vector(0, 0, 1), 1.8), False)
sketch15.addConstraint(Sketcher.Constraint("Equal", 0, 1))
sketch15.addConstraint(Sketcher.Constraint("Equal", 1, 2))
sketch15.addConstraint(Sketcher.Constraint("Equal", 2, 3))
sketch15.addConstraint(Sketcher.Constraint("Symmetric", 0, 3, 2, 3, -1, 1))
sketch15.addConstraint(Sketcher.Constraint("Symmetric", 1, 3, 3, 3, -1, 1))
sketch15.addConstraint(Sketcher.Constraint("Symmetric", 0, 3, 1, 3, -2))
sketch15.addConstraint(Sketcher.Constraint("Diameter", 0, Q("3.6 mm")))
sketch15.addConstraint(Sketcher.Constraint("DistanceX", 0, 3, 1, 3, Q("47 mm")))
sketch15.addConstraint(Sketcher.Constraint("DistanceY", 2, 3, 1, 3, Q("43 mm")))
pocket5 = body.newObject("PartDesign::Pocket", "Pocket004")
pocket5.Profile = sketch15
pocket5.Length = 6

sketch16 = body.newObject("Sketcher::SketchObject", "Sketch015")
sketch16.AttachmentSupport = (doc.getObject("YZ_Plane"), [""])
sketch16.MapMode = "FlatFace"
sketch16.AttachmentOffset = App.Placement(Vector(0, 0, 26.5), App.Rotation())
sketch16.addGeometry(Part.Circle(Vector(0, 20, 0), Vector(0, 0, 1), 10), False)
sketch16.addConstraint(Sketcher.Constraint("PointOnObject", 0, 3, -2))
sketch16.addConstraint(Sketcher.Constraint("Diameter", 0, Q("20.6 mm")))
sketch16.addConstraint(Sketcher.Constraint("DistanceY", -1, 1, 0, 3, Q("20 mm")))
pocket6 = body.newObject("PartDesign::Pocket", "Pocket005")
pocket6.Profile = sketch16
pocket6.Type = "TwoLengths"
pocket6.Length = 77.257786
pocket6.Length2 = 5
pocket6.Reversed = True

sketch17 = body.newObject("Sketcher::SketchObject", "Sketch016")
sketch17.AttachmentSupport = (doc.getObject("XY_Plane"), [""])
sketch17.MapMode = "FlatFace"
sketch17.AttachmentOffset = App.Placement(Vector(0, 0, 8), App.Rotation())
add_polygon(sketch17, [(-15, 20), (-15, 11), (15, 11), (15, 20)])
sketch17.addConstraint(Sketcher.Constraint("Vertical", 0))
sketch17.addConstraint(Sketcher.Constraint("Horizontal", 1))
sketch17.addConstraint(Sketcher.Constraint("Vertical", 2))
sketch17.addConstraint(Sketcher.Constraint("Horizontal", 3))
sketch17.addConstraint(Sketcher.Constraint("DistanceX", 1, 1, 1, 2, Q("29.5 mm")))
sketch17.addConstraint(Sketcher.Constraint("DistanceX", 0, 2, -1, 1, Q("14.75 mm")))
sketch17.addConstraint(Sketcher.Constraint("DistanceY", -1, 1, 0, 2, Q("11.25 mm")))
sketch17.addConstraint(Sketcher.Constraint("DistanceY", 0, 2, 0, 1, Q("8.403352 mm")))
pocket7 = body.newObject("PartDesign::Pocket", "Pocket006")
pocket7.Profile = sketch17
pocket7.Length = 15

sketch18 = body.newObject("Sketcher::SketchObject", "Sketch017")
sketch18.AttachmentSupport = (doc.getObject("YZ_Plane"), [""])
sketch18.MapMode = "FlatFace"
sketch18.AttachmentOffset = App.Placement(Vector(0, 0, 26.5), App.Rotation())
sketch18.addGeometry(Part.Circle(Vector(0, 20, 0), Vector(0, 0, 1), 12), False)
sketch18.addConstraint(Sketcher.Constraint("PointOnObject", 0, 3, -2))
sketch18.addConstraint(Sketcher.Constraint("Diameter", 0, Q("24 mm")))
sketch18.addConstraint(Sketcher.Constraint("DistanceY", -1, 1, 0, 3, Q("20 mm")))
pad11 = body.newObject("PartDesign::Pad", "Pad010")
pad11.Profile = sketch18
pad11.Length = 1

sketch19 = body.newObject("Sketcher::SketchObject", "Sketch018")
sketch19.AttachmentSupport = (doc.getObject("YZ_Plane"), [""])
sketch19.MapMode = "FlatFace"
sketch19.AttachmentOffset = App.Placement(Vector(0, 0, 27.5), App.Rotation())
sketch19.addGeometry(Part.Circle(Vector(0, 20, 0), Vector(0, 0, 1), 10), False)
sketch19.addConstraint(Sketcher.Constraint("PointOnObject", 0, 3, -2))
sketch19.addConstraint(Sketcher.Constraint("Diameter", 0, Q("20 mm")))
sketch19.addConstraint(Sketcher.Constraint("DistanceY", -1, 1, 0, 3, Q("20 mm")))
pocket8 = body.newObject("PartDesign::Pocket", "Pocket007")
pocket8.Profile = sketch19
pocket8.Type = "TwoLengths"
pocket8.Length = 77.956156
pocket8.Length2 = 21
pocket8.Reversed = True

sketch20 = body.newObject("Sketcher::SketchObject", "Sketch019")
sketch20.AttachmentSupport = (doc.getObject("YZ_Plane"), [""])
sketch20.MapMode = "FlatFace"
sketch20.AttachmentOffset = App.Placement(Vector(0, 0, 16.25), App.Rotation())
add_polygon(sketch20, [(26, 3), (14, -18), (26, -18)])
sketch20.addConstraint(Sketcher.Constraint("Horizontal", 1))
sketch20.addConstraint(Sketcher.Constraint("Vertical", 2))
sketch20.addConstraint(Sketcher.Constraint("DistanceY", 0, 2, -1, 1, Q("18.5 mm")))
sketch20.addConstraint(Sketcher.Constraint("DistanceX", -1, 1, 1, 2, Q("26.5 mm")))
sketch20.addConstraint(Sketcher.Constraint("Distance", 0, Q("25.206 mm")))
sketch20.addConstraint(Sketcher.Constraint("DistanceX", 1, 1, 1, 2, Q("12.859315 mm")))
pocket9 = body.newObject("PartDesign::Pocket", "Pocket008")
pocket9.Profile = sketch20
pocket9.Type = "ThroughAll"

sketch21 = body.newObject("Sketcher::SketchObject", "Sketch020")
sketch21.AttachmentSupport = (doc.getObject("YZ_Plane"), [""])
sketch21.MapMode = "FlatFace"
sketch21.AttachmentOffset = App.Placement(Vector(0, 0, 27.5), App.Rotation())
sketch21.addGeometry(Part.Circle(Vector(0, 20, 0), Vector(0, 0, 1), 10), False)
sketch21.addConstraint(Sketcher.Constraint("PointOnObject", 0, 3, -2))
sketch21.addConstraint(Sketcher.Constraint("Diameter", 0, Q("20.6 mm")))
sketch21.addConstraint(Sketcher.Constraint("DistanceY", -1, 1, 0, 3, Q("20 mm")))
pocket10 = body.newObject("PartDesign::Pocket", "Pocket009")
pocket10.Profile = sketch21
pocket10.Length = 11
doc.recompute()

boolean4 = body2.newObject("PartDesign::Boolean", "Boolean003")
boolean4.Type = "Cut"
boolean4.addObjects([body5])

sketch22 = body2.newObject("Sketcher::SketchObject", "Sketch021")
sketch22.AttachmentSupport = (doc.getObject("XY_Plane001"), [""])
sketch22.MapMode = "FlatFace"
sketch22.AttachmentOffset = App.Placement(Vector(0, 0, 12), App.Rotation())
add_polygon(sketch22, [(-14.8, -36.2), (-14.8, -37.5), (14.8, -37.5), (14.8, -36.2)])
sketch22.addConstraint(Sketcher.Constraint("Vertical", 0))
sketch22.addConstraint(Sketcher.Constraint("Horizontal", 1))
sketch22.addConstraint(Sketcher.Constraint("Vertical", 2))
sketch22.addConstraint(Sketcher.Constraint("Horizontal", 3))
sketch22.addConstraint(Sketcher.Constraint("DistanceX", 1, 1, 1, 2, Q("29.5 mm")))
sketch22.addConstraint(Sketcher.Constraint("DistanceY", 0, 2, 0, 1, Q("1.25 mm")))
sketch22.addConstraint(Sketcher.Constraint("DistanceY", 0, 2, -1, 1, Q("37.5 mm")))
sketch22.addConstraint(Sketcher.Constraint("DistanceX", 0, 2, -1, 1, Q("14.75 mm")))
pocket11 = body2.newObject("PartDesign::Pocket", "Pocket010")
pocket11.Profile = sketch22
pocket11.Length = 25

doc.recompute()
